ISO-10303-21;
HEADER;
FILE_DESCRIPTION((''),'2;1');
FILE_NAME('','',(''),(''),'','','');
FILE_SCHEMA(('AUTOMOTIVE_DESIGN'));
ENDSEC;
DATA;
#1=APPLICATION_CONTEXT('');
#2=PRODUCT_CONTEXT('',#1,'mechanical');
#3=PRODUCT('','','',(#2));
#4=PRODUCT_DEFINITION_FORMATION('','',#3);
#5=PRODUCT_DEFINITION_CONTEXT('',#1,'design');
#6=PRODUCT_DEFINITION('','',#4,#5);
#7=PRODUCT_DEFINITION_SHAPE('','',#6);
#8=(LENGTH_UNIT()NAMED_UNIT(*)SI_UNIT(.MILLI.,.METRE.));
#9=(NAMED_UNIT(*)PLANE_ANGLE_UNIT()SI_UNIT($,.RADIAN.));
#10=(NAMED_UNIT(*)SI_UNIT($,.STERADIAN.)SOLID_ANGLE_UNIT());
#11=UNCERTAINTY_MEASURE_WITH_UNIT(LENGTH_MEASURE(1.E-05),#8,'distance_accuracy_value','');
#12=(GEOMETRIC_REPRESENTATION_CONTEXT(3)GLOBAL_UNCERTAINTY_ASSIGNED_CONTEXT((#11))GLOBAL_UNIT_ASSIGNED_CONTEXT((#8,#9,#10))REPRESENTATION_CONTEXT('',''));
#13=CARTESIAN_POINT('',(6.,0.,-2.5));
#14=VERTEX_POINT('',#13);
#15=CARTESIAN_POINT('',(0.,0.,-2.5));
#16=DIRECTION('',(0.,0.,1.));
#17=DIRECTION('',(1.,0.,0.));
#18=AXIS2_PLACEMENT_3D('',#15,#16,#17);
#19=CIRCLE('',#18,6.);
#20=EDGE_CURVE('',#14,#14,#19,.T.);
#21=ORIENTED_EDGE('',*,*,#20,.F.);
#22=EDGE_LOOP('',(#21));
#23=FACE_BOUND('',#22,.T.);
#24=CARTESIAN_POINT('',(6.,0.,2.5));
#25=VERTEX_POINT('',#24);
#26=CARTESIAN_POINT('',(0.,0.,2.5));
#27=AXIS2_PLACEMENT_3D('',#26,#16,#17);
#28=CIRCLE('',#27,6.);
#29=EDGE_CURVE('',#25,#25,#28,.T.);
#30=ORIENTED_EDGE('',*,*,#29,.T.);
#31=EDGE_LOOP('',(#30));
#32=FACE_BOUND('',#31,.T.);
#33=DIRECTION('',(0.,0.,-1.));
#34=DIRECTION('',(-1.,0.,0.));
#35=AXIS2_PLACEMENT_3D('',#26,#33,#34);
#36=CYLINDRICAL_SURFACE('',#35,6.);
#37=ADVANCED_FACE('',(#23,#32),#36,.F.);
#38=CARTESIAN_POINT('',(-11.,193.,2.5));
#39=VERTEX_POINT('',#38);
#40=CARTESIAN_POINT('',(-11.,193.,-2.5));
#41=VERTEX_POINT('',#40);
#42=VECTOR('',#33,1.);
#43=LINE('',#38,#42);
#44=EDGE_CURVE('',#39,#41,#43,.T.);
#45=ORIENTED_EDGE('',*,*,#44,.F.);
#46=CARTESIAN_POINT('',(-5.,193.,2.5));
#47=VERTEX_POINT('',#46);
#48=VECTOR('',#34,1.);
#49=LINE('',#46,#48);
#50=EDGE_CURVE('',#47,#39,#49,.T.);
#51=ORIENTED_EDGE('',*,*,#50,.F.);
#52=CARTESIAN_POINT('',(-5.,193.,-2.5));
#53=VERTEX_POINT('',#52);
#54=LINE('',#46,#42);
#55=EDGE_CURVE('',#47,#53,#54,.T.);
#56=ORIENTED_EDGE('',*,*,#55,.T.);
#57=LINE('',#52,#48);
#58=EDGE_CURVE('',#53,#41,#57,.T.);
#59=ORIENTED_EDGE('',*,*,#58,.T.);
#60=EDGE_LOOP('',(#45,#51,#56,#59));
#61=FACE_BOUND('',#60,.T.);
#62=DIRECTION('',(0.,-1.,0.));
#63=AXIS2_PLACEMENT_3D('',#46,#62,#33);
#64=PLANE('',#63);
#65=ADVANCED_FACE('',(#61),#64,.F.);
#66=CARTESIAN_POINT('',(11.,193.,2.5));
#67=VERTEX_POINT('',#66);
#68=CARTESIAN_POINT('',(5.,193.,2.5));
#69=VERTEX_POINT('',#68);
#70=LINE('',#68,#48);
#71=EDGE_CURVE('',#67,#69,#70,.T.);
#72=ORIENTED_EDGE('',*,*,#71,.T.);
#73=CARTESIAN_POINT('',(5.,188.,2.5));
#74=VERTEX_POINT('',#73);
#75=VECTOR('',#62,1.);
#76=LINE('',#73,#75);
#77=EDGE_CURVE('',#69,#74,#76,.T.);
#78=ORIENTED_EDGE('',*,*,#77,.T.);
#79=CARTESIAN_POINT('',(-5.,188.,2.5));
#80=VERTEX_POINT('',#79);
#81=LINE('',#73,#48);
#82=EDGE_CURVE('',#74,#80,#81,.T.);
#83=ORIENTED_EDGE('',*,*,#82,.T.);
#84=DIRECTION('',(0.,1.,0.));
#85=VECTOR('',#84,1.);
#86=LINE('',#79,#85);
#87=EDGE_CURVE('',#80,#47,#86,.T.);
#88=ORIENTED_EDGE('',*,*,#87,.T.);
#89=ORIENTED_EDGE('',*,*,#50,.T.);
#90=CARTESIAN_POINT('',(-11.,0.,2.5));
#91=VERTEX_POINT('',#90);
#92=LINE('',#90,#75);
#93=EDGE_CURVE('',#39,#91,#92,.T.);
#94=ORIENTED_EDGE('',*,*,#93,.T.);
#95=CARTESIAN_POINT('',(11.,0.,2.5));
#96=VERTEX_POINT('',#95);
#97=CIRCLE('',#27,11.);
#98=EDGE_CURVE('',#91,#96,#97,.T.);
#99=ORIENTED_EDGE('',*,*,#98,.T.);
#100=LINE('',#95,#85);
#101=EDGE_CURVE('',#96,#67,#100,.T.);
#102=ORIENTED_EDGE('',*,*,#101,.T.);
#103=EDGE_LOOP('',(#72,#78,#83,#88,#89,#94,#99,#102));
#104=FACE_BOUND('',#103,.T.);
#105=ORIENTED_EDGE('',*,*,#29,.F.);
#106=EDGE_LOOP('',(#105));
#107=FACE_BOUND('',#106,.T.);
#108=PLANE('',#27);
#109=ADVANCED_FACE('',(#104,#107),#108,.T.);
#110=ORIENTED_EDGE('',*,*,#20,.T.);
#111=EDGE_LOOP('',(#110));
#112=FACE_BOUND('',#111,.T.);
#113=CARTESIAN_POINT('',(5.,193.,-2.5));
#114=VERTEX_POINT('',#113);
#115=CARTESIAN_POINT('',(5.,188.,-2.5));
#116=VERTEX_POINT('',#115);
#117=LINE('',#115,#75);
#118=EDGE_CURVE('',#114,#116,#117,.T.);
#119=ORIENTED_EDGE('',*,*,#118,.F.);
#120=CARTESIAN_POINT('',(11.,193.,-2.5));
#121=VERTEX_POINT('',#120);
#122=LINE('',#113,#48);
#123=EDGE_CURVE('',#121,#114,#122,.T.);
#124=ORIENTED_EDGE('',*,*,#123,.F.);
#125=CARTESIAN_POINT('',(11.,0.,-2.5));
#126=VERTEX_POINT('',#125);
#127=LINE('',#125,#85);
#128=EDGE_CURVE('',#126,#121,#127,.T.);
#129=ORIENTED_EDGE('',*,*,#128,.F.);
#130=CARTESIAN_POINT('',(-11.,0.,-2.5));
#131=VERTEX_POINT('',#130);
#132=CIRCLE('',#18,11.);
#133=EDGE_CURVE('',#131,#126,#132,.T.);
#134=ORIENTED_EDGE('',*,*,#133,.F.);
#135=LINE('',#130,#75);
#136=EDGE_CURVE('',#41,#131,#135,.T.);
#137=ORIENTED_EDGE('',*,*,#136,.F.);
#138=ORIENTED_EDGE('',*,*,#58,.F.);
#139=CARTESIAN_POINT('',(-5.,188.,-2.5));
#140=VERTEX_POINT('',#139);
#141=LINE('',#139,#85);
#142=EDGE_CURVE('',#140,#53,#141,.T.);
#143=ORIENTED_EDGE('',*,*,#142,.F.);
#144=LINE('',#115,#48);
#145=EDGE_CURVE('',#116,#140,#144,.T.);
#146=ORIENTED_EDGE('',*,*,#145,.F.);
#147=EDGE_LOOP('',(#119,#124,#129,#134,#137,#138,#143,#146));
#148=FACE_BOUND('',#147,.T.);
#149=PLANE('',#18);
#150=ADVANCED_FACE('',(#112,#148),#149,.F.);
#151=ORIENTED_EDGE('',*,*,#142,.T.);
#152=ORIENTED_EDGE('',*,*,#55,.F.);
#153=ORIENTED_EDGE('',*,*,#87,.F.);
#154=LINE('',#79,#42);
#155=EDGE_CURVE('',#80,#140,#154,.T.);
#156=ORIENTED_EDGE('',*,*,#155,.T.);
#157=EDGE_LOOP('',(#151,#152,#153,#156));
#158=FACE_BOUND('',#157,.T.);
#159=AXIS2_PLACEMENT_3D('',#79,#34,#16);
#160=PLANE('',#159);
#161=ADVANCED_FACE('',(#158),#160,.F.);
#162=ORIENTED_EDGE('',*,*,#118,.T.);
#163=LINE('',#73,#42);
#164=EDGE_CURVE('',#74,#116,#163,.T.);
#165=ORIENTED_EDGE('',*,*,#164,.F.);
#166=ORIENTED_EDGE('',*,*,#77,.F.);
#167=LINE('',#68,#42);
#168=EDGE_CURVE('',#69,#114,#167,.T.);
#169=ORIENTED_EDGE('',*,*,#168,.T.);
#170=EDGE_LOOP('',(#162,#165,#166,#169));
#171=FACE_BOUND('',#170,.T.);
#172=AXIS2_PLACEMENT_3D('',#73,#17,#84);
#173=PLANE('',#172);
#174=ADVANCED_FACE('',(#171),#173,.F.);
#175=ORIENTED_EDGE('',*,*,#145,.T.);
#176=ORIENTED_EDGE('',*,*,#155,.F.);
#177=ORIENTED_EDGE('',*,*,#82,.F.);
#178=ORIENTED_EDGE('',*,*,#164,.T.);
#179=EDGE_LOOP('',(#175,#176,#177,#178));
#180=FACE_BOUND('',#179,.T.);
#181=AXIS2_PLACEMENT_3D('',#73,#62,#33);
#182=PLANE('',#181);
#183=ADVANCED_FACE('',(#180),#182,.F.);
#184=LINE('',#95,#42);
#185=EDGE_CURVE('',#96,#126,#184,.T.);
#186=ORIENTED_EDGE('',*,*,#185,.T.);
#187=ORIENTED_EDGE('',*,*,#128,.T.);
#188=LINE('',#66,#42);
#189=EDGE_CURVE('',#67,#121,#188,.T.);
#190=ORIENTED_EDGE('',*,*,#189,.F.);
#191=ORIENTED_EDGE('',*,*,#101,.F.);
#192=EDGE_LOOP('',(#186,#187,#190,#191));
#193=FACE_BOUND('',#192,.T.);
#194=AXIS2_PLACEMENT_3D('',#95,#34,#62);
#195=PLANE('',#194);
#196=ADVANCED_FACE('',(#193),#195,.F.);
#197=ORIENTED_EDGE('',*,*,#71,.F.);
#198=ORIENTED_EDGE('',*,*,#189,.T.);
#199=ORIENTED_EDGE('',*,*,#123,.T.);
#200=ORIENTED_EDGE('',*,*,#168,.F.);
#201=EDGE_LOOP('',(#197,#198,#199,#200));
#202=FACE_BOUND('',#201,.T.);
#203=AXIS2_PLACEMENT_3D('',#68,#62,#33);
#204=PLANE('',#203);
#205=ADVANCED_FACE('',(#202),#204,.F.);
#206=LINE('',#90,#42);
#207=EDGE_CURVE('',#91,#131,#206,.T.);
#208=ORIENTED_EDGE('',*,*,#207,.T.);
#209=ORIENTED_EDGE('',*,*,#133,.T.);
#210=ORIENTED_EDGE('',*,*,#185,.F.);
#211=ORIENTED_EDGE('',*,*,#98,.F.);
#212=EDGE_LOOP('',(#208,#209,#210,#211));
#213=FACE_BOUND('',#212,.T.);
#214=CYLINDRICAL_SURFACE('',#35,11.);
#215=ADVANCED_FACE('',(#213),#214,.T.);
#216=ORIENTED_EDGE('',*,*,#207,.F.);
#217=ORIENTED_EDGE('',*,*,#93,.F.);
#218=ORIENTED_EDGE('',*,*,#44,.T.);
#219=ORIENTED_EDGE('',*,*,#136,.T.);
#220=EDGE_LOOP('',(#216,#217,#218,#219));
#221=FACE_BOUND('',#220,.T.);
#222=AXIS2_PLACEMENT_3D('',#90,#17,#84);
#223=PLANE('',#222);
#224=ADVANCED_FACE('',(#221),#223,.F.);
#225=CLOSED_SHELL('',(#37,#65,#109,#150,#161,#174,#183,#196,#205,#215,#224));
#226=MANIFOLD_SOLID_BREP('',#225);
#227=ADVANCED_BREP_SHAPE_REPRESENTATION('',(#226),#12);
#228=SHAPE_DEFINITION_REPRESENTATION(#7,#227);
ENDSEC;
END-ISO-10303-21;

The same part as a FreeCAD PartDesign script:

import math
import FreeCAD as App
import Part
import Sketcher
from FreeCAD import Vector
Q = App.Units.Quantity

doc = App.newDocument("Part")
body = doc.addObject("PartDesign::Body", "Body")

sketch1 = doc.addObject("Sketcher::SketchObject", "Sketch")
body.addObject(sketch1)
sketch1.AttachmentSupport = (doc.XY_Plane, [""])
sketch1.MapMode = "FlatFace"
sketch1.addGeometry(Part.LineSegment(Vector(-11, 193, 0), Vector(-11, 0, 0)), False)
sketch1.addGeometry(Part.ArcOfCircle(Part.Circle(Vector(0, 0, 0), Vector(0, 0, 1), 11), math.radians(180), math.radians(360)), False)
sketch1.addGeometry(Part.LineSegment(Vector(11, 0, 0), Vector(11, 193, 0)), False)
sketch1.addGeometry(Part.LineSegment(Vector(11, 193, 0), Vector(5, 193, 0)), False)
sketch1.addGeometry(Part.LineSegment(Vector(5, 193, 0), Vector(5, 188, 0)), False)
sketch1.addGeometry(Part.LineSegment(Vector(5, 188, 0), Vector(-5, 188, 0)), False)
sketch1.addGeometry(Part.LineSegment(Vector(-5, 188, 0), Vector(-5, 193, 0)), False)
sketch1.addGeometry(Part.LineSegment(Vector(-5, 193, 0), Vector(-11, 193, 0)), False)
sketch1.addGeometry(Part.Circle(Vector(0, 0, 0), Vector(0, 0, 1), 6), False)
sketch1.addConstraint(Sketcher.Constraint("Tangent", 0, 2, 1, 1))
sketch1.addConstraint(Sketcher.Constraint("Tangent", 1, 2, 2, 1))
sketch1.addConstraint(Sketcher.Constraint("Coincident", 2, 2, 3, 1))
sketch1.addConstraint(Sketcher.Constraint("Coincident", 3, 2, 4, 1))
sketch1.addConstraint(Sketcher.Constraint("Coincident", 4, 2, 5, 1))
sketch1.addConstraint(Sketcher.Constraint("Coincident", 5, 2, 6, 1))
sketch1.addConstraint(Sketcher.Constraint("Coincident", 6, 2, 7, 1))
sketch1.addConstraint(Sketcher.Constraint("Coincident", 7, 2, 0, 1))
sketch1.addConstraint(Sketcher.Constraint("Vertical", 0))
sketch1.addConstraint(Sketcher.Constraint("Vertical", 2))
sketch1.addConstraint(Sketcher.Constraint("Horizontal", 3))
sketch1.addConstraint(Sketcher.Constraint("Vertical", 4))
sketch1.addConstraint(Sketcher.Constraint("Horizontal", 5))
sketch1.addConstraint(Sketcher.Constraint("Vertical", 6))
sketch1.addConstraint(Sketcher.Constraint("Horizontal", 7))
sketch1.addConstraint(Sketcher.Constraint("Coincident", 1, 3, -1, 1))
sketch1.addConstraint(Sketcher.Constraint("Coincident", 8, 3, -1, 1))
sketch1.addConstraint(Sketcher.Constraint("Symmetric", 3, 2, 6, 2, -2))
sketch1.addConstraint(Sketcher.Constraint("Diameter", 8, Q("12 mm")))
sketch1.addConstraint(Sketcher.Constraint("Radius", 1, Q("11 mm")))
sketch1.addConstraint(Sketcher.Constraint("DistanceX", 3, 2, 3, 1, Q("6 mm")))
sketch1.addConstraint(Sketcher.Constraint("DistanceY", 0, 2, 0, 1, Q("193 mm")))
sketch1.addConstraint(Sketcher.Constraint("DistanceY", 4, 2, 4, 1, Q("5 mm")))
pad1 = doc.addObject("PartDesign::Pad", "Pad")
body.addObject(pad1)
pad1.Profile = sketch1
pad1.Length = 5
pad1.Midplane = True

doc.recompute()
